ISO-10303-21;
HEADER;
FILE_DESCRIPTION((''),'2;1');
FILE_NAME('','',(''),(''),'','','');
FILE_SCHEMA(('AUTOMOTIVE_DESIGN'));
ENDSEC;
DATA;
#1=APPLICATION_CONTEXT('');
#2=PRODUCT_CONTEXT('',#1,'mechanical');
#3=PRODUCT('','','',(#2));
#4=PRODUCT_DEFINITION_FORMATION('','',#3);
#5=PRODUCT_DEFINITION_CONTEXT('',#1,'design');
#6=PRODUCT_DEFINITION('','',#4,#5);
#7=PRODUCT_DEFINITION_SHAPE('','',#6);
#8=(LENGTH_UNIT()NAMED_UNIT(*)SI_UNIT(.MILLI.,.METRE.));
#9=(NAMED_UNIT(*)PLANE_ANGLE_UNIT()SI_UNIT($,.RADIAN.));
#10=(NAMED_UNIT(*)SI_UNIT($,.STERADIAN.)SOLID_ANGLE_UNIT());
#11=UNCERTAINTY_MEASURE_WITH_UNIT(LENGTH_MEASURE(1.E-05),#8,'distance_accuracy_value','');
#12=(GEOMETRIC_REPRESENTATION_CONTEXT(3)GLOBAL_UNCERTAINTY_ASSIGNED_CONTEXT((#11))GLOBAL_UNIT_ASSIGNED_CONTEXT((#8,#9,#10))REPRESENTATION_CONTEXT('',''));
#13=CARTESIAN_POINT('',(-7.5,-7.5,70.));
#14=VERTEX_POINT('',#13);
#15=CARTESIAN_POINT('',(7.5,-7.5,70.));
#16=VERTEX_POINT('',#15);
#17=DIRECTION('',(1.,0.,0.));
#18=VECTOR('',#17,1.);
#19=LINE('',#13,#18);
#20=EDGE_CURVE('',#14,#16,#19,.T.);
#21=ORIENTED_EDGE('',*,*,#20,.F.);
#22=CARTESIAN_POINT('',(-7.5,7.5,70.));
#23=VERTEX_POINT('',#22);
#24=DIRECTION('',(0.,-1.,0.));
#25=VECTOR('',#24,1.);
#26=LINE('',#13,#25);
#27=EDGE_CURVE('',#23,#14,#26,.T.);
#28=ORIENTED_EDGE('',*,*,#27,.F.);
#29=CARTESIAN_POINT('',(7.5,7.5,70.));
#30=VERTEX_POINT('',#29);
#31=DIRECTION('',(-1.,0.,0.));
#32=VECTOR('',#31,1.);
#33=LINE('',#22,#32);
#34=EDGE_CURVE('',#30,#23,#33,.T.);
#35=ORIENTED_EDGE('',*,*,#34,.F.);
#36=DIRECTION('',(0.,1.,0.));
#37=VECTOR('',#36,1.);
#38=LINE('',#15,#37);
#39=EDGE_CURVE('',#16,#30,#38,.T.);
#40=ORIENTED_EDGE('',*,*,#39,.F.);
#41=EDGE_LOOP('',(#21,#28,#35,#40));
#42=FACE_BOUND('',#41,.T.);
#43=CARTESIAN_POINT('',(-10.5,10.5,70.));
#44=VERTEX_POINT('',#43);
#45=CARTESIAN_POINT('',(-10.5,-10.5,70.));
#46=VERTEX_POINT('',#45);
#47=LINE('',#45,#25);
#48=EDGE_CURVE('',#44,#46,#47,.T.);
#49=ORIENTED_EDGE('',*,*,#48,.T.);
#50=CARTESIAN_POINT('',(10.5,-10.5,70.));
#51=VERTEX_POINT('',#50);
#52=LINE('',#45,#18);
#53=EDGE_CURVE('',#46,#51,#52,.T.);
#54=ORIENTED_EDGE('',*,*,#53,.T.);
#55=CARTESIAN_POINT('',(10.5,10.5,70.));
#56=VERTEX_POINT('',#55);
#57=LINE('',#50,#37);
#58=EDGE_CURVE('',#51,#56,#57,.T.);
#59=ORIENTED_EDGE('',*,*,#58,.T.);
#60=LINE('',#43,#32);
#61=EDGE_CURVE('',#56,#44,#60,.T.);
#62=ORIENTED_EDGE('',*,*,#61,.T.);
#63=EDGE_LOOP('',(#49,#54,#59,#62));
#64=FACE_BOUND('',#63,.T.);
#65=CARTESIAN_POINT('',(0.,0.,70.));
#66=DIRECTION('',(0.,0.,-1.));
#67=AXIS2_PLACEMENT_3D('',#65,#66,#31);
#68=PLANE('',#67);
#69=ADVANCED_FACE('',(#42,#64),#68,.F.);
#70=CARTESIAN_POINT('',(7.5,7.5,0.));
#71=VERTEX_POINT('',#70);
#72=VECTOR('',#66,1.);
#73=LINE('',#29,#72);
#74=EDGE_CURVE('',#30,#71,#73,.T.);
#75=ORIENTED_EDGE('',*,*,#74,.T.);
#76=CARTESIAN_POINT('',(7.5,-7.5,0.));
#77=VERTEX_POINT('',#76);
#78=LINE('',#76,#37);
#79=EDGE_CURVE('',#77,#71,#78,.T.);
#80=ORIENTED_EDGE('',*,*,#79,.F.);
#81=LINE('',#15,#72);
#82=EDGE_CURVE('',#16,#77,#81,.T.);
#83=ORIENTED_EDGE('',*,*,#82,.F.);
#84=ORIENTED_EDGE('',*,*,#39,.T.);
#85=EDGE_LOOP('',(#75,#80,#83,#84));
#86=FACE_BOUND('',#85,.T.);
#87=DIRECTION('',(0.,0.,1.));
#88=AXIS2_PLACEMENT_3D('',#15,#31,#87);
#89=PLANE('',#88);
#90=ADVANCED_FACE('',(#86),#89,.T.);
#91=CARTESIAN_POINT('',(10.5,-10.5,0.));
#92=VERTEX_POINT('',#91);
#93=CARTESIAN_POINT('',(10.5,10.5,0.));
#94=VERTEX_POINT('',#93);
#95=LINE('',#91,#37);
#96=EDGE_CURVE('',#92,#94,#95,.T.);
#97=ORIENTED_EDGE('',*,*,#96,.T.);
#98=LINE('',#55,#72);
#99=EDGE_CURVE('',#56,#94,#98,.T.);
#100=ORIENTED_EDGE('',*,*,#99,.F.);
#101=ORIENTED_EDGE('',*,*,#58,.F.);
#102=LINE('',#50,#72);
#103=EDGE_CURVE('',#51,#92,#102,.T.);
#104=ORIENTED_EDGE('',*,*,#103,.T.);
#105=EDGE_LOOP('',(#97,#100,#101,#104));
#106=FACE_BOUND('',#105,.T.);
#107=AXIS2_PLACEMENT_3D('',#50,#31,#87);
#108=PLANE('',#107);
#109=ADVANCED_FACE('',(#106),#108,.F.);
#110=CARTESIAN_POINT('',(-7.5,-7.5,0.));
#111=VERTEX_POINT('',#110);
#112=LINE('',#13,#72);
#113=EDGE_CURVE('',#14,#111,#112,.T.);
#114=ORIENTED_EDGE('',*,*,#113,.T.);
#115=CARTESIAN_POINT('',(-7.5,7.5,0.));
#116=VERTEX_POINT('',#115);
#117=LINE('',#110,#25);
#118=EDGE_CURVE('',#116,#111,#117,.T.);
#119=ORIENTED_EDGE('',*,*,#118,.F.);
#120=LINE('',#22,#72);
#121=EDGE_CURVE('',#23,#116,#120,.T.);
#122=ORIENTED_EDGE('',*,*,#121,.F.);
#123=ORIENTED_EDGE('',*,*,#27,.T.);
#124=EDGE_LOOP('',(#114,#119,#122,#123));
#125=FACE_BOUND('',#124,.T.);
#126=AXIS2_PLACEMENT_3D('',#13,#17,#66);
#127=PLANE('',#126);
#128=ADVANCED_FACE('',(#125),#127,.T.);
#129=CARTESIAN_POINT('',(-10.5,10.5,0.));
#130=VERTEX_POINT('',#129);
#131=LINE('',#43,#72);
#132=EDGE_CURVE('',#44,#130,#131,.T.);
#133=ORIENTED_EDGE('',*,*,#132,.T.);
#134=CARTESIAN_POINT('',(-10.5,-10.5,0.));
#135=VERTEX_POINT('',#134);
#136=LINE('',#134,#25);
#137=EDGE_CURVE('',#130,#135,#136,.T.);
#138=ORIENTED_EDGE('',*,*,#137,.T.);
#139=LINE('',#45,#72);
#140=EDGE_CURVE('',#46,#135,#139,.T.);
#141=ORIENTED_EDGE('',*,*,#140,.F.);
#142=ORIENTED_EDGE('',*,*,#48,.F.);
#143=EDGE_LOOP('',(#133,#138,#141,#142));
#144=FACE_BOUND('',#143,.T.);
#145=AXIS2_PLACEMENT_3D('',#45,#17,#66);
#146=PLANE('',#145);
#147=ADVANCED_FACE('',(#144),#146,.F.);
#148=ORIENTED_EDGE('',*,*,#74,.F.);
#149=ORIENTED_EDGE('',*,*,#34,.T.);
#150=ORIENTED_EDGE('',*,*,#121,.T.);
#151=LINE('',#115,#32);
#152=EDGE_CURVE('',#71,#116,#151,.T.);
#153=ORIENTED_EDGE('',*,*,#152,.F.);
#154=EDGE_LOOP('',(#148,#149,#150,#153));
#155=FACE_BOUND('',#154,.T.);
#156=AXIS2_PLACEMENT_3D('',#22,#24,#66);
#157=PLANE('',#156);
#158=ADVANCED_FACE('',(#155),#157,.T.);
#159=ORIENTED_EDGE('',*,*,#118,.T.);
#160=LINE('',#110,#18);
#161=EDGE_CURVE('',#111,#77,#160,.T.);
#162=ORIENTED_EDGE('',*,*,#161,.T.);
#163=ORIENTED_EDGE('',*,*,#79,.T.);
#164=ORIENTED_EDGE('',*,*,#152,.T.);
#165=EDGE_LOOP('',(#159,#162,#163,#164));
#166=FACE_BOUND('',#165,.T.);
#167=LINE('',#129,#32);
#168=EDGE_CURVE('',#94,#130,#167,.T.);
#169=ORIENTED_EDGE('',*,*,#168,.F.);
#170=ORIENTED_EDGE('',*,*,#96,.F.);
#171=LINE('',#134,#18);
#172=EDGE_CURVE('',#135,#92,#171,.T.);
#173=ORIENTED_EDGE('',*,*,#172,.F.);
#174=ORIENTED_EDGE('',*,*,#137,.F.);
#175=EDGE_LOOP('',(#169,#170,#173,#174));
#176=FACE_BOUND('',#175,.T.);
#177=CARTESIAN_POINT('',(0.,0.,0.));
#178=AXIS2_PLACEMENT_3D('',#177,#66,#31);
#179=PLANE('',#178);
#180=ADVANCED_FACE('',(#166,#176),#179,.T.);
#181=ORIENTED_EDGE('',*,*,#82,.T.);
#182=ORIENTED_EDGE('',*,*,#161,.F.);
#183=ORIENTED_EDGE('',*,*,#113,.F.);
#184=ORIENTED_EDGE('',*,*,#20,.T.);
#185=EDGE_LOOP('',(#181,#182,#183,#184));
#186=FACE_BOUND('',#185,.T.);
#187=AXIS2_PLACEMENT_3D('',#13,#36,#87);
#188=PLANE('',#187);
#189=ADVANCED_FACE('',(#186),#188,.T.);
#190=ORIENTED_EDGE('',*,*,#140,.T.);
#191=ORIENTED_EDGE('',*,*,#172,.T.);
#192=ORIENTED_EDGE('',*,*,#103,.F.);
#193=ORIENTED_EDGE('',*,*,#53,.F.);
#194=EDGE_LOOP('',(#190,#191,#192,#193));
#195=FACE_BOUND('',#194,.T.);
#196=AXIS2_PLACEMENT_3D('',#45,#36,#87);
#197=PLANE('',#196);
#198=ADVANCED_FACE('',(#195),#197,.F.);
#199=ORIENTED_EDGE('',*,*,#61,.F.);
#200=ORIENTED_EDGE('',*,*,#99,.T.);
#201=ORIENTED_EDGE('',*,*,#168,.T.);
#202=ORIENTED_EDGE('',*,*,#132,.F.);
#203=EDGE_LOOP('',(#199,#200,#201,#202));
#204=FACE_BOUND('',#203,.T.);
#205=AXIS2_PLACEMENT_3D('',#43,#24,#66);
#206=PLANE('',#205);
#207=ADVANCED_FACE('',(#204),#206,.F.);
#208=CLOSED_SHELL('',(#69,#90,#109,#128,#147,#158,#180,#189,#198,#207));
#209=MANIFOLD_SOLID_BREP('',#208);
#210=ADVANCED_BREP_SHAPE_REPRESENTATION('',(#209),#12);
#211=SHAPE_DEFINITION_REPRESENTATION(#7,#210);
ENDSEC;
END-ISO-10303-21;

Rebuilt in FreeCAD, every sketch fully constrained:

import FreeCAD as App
import Part
import Sketcher
Q = App.Units.Quantity


def add_polygon(sketch, points):
    """Adds a closed chain of lines whose ends are joined by coincident constraints."""
    first, n = sketch.GeometryCount, len(points)
    for a, b in zip(points, points[1:] + points[:1]):
        sketch.addGeometry(Part.LineSegment(App.Vector(*a, 0), App.Vector(*b, 0)), False)
    for i in range(n):
        sketch.addConstraint(Sketcher.Constraint("Coincident", first + i, 2, first + (i + 1) % n, 1))

doc = App.newDocument("Part")
body = doc.addObject("PartDesign::Body", "Body")

# Sketch on XY plane
sketch1 = doc.addObject("Sketcher::SketchObject", "Sketch")
body.addObject(sketch1)
sketch1.AttachmentSupport = (doc.XY_Plane, [""])
sketch1.MapMode = "FlatFace"
add_polygon(sketch1, [(-10, 10), (-10, -10), (10, -10), (10, 10)])  # lines 0-3
add_polygon(sketch1, [(8, -8), (-8, -8), (-8, 8), (8, 8)])  # lines 4-7
sketch1.addConstraint([
    Sketcher.Constraint("Vertical", 0),
    Sketcher.Constraint("Horizontal", 1),
    Sketcher.Constraint("Vertical", 2),
    Sketcher.Constraint("Horizontal", 3),
    Sketcher.Constraint("Horizontal", 4),
    Sketcher.Constraint("Vertical", 5),
    Sketcher.Constraint("Horizontal", 6),
    Sketcher.Constraint("Vertical", 7),
    Sketcher.Constraint("Symmetric", 0, 2, 2, 2, -1, 1),
    Sketcher.Constraint("Symmetric", 4, 2, 6, 2, -1, 1),
    Sketcher.Constraint("Equal", 3, 0),
    Sketcher.Constraint("Equal", 6, 5),
    Sketcher.Constraint("DistanceX", 1, 1, 1, 2, Q("21 mm")),
    Sketcher.Constraint("DistanceX", 4, 2, 4, 1, Q("15 mm")),
])
pad1 = doc.addObject("PartDesign::Pad", "Pad")
body.addObject(pad1)
pad1.Profile = sketch1
pad1.Length = 70

doc.recompute()
